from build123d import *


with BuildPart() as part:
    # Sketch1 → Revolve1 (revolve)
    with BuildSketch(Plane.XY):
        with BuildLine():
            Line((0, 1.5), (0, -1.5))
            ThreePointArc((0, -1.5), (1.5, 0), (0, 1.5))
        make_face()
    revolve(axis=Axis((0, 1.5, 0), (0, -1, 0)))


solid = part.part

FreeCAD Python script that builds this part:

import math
import FreeCAD as App
import Part
import Sketcher

V = App.Vector
Q = App.Units.Quantity

doc = App.newDocument("Part")
params = doc.addObject("Spreadsheet::Sheet", "Params")
for row, (alias, value) in enumerate([
    ("sketch1_radius", "1.5 mm"),
    ("revolution_angle", "360 deg"),
], start=1):
    params.set(f"A{row}", alias)
    params.set(f"B{row}", "=" + value)
    params.setAlias(f"B{row}", alias)

body = doc.addObject("PartDesign::Body", "Body")

sketch1 = body.newObject("Sketcher::SketchObject", "Sketch")
sketch1.AttachmentSupport = (doc.getObject("XY_Plane"), [""])
sketch1.MapMode = "FlatFace"
sketch1.addGeometry(Part.LineSegment(V(0, 1.5, 0), V(0, -1.5, 0)), False)
sketch1.addGeometry(Part.ArcOfCircle(Part.Circle(V(0, 0, 0), V(0, 0, 1), 1.5), math.radians(-90), math.radians(90)), False)
sketch1.addConstraint(Sketcher.Constraint("Coincident", 0, 1, 1, 2))
sketch1.addConstraint(Sketcher.Constraint("Coincident", 1, 1, 0, 2))
sketch1.addConstraint(Sketcher.Constraint("Vertical", 0))
sketch1.addConstraint(Sketcher.Constraint("Coincident", 1, 3, -1, 1))
sketch1.addConstraint(Sketcher.Constraint("PointOnObject", 0, 1, -2))
sketch1.addConstraint(Sketcher.Constraint("Radius", 1, Q("1.5 mm")))
sketch1.setExpression("Constraints[5]", "Params.sketch1_radius")
revolution = body.newObject("PartDesign::Revolution", "Revolution")
revolution.Profile = sketch1
revolution.ReferenceAxis = (sketch1, ["V_Axis"])
revolution.setExpression("Angle", "Params.revolution_angle")

doc.recompute()
